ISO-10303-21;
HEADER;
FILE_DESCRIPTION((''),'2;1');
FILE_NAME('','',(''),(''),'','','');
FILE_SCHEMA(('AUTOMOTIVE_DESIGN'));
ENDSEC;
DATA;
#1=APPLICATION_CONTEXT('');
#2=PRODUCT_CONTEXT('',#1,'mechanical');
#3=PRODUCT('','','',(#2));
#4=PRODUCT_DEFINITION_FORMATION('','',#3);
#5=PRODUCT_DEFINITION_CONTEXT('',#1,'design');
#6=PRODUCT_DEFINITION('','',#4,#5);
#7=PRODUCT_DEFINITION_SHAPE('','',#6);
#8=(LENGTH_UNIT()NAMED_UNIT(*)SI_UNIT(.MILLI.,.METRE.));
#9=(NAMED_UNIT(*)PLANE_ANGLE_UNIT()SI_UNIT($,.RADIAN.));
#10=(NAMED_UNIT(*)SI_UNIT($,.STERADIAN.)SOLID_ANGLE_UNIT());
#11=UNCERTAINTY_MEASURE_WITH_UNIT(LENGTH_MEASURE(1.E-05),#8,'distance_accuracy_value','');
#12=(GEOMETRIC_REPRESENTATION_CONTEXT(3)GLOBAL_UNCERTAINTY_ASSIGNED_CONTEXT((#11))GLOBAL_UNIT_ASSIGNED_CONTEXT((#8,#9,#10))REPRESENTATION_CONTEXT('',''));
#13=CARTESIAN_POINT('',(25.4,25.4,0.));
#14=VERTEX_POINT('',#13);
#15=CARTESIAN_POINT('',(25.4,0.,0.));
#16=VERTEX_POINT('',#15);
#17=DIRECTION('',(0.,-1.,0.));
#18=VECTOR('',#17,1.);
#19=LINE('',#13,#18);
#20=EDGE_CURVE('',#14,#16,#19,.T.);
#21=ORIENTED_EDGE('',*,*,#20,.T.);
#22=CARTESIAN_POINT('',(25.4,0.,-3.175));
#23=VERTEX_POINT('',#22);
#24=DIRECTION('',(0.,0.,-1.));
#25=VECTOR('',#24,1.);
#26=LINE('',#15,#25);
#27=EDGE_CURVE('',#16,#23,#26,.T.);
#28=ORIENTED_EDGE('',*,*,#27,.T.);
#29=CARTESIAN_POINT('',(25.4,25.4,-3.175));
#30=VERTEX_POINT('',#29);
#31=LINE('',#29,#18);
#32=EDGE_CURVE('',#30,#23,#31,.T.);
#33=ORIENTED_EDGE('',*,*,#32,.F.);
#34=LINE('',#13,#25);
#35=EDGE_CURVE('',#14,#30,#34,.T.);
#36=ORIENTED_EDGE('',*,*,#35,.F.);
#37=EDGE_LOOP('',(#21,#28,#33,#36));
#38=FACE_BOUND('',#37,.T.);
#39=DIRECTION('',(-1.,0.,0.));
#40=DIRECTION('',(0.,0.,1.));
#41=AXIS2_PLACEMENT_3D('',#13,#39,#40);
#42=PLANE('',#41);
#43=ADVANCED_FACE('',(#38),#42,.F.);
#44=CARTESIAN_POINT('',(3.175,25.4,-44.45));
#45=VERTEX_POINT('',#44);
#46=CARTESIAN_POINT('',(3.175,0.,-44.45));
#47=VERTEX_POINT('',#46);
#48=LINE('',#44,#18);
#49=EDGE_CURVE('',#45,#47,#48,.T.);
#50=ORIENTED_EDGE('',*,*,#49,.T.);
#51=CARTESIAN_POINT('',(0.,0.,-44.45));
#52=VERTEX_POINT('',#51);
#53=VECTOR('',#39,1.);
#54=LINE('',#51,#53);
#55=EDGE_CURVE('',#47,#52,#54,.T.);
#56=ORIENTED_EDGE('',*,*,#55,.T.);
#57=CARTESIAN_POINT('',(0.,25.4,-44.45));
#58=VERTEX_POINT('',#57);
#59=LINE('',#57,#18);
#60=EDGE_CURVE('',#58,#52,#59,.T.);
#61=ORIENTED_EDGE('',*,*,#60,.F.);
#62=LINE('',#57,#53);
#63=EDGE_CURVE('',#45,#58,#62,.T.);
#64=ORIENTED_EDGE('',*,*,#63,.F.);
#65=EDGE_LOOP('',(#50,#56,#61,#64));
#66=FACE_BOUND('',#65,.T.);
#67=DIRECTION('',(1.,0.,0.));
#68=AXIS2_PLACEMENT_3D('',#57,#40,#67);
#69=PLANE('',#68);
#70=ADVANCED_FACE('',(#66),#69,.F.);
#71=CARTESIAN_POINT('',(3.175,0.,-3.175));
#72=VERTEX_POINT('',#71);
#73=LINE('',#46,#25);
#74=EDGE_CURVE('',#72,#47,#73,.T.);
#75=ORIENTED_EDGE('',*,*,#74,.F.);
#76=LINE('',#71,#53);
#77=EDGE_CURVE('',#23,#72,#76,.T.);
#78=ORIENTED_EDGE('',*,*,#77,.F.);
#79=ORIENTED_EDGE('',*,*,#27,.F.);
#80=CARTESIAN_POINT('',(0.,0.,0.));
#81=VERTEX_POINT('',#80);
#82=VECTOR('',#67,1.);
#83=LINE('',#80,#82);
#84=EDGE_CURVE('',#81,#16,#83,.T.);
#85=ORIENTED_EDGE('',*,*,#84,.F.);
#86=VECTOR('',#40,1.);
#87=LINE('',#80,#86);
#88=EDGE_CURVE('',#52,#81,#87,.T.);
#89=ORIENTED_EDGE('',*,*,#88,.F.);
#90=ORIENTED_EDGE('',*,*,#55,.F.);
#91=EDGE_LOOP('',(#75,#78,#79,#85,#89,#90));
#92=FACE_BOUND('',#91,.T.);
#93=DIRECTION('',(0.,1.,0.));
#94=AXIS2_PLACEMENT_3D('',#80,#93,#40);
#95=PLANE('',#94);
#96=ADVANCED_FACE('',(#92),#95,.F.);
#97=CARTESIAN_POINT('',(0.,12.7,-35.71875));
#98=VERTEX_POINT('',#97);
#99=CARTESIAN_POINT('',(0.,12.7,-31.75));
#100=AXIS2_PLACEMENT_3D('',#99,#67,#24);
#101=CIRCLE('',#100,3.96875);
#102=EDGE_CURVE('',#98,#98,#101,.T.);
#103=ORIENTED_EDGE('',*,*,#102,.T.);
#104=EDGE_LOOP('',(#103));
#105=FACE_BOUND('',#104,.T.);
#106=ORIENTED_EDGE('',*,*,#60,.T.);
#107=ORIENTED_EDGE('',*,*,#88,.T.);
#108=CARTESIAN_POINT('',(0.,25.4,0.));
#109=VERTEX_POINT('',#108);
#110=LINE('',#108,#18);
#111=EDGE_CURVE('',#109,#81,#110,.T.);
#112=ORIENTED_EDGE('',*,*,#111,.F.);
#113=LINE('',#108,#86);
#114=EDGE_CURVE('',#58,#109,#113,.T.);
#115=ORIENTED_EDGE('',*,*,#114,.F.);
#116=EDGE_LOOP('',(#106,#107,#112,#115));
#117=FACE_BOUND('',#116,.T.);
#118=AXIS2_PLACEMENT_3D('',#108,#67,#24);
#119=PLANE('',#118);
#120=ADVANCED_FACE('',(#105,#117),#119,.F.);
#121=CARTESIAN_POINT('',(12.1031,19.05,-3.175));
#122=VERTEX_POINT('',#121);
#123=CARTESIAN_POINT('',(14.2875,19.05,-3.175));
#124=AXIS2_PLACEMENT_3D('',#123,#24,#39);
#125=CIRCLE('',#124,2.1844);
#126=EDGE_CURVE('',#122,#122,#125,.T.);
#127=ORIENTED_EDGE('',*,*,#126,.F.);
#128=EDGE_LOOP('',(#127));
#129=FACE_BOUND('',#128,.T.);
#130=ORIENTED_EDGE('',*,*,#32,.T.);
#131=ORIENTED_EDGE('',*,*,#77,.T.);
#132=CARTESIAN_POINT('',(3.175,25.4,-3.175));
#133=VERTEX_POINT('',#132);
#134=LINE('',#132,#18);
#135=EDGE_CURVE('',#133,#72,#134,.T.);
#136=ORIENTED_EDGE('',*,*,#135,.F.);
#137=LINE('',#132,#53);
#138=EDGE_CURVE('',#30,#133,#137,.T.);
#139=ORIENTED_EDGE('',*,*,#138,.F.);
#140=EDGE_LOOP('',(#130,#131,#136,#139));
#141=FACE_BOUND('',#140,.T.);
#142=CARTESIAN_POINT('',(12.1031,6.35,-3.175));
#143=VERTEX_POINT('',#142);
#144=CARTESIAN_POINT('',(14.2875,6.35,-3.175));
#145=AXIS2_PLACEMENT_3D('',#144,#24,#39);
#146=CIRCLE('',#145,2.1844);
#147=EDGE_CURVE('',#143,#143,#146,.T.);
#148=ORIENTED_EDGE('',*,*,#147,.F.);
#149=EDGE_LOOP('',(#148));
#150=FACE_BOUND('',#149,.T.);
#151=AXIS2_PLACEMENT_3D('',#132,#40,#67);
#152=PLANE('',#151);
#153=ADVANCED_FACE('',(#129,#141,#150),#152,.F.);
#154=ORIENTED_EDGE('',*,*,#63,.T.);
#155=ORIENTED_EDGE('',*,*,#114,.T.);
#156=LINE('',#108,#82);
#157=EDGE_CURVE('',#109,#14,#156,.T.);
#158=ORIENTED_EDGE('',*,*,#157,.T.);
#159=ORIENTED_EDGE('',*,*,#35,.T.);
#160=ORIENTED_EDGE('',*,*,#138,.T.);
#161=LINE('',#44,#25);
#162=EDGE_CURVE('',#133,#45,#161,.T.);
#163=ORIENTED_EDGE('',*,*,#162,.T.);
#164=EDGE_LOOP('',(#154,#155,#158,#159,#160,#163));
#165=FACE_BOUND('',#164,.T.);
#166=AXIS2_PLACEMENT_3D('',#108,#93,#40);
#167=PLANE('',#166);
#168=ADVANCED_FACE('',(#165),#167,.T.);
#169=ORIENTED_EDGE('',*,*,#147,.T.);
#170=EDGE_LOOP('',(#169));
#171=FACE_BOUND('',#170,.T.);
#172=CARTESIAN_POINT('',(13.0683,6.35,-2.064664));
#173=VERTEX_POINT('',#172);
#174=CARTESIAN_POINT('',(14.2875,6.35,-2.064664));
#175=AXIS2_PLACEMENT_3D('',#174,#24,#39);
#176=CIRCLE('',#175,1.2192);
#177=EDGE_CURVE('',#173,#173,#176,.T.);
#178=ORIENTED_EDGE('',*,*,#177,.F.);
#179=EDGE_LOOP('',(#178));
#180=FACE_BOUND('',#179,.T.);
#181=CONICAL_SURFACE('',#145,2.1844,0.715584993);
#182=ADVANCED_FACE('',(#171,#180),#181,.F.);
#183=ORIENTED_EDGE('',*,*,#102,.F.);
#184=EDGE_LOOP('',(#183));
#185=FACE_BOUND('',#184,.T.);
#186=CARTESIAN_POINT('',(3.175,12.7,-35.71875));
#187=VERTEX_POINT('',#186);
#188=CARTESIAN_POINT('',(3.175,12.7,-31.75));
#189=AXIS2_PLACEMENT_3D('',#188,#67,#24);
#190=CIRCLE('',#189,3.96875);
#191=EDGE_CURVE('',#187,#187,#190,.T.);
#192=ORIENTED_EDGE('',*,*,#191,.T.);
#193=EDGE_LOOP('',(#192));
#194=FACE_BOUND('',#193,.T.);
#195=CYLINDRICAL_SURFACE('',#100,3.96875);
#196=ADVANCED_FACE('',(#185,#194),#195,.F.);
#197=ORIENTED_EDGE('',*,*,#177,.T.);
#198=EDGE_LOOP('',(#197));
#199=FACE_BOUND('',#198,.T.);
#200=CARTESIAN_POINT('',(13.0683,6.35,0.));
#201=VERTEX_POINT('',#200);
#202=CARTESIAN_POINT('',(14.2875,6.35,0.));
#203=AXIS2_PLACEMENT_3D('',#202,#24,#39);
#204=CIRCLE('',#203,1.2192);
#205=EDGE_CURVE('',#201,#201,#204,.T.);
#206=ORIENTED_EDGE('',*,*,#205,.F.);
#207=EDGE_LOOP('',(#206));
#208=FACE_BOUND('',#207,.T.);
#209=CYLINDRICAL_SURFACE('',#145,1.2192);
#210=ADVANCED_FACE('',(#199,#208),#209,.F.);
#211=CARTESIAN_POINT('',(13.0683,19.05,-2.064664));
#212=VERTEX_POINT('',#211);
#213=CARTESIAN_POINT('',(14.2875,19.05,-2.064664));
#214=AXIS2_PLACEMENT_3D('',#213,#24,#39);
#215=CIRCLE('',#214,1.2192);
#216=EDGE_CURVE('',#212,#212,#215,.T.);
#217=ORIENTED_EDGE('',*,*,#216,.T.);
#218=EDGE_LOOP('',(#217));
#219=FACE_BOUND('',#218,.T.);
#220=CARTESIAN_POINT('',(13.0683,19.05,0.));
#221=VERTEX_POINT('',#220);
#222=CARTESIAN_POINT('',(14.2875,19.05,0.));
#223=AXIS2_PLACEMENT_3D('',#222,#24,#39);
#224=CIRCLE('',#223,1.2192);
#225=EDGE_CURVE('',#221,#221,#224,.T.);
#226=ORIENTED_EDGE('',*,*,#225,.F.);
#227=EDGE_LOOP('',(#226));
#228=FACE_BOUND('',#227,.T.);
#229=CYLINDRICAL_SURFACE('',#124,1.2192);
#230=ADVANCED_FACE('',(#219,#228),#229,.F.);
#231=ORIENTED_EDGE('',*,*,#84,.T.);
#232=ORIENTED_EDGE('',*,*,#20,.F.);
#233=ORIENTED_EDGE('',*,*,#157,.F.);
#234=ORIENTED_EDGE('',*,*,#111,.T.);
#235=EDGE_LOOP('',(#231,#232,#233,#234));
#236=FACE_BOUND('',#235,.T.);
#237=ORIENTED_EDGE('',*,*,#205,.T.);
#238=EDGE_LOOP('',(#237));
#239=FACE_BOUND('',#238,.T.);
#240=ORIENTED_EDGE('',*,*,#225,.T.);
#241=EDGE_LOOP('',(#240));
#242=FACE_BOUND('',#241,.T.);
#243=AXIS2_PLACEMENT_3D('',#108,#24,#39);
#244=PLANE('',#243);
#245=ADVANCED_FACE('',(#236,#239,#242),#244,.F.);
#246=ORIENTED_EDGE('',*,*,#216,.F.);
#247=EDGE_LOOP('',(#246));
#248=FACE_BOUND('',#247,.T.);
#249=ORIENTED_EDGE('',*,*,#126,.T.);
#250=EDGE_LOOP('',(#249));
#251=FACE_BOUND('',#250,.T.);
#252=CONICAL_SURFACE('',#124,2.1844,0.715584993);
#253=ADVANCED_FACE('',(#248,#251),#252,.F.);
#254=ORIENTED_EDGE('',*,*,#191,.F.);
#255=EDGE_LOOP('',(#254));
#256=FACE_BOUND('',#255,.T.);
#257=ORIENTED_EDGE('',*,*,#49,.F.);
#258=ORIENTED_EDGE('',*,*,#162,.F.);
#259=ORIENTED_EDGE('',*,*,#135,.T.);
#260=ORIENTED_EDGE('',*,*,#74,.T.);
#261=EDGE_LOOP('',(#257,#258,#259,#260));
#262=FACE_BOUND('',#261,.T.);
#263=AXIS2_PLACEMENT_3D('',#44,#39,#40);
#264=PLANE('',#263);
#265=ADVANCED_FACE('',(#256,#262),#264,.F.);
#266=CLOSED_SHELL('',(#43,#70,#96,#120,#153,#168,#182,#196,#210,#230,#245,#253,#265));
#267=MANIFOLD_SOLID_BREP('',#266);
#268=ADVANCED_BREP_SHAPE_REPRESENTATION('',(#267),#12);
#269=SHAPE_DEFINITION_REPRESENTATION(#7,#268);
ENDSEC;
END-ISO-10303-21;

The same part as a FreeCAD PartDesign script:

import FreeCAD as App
import Part
import Sketcher
Q = App.Units.Quantity


def add_polygon(sketch, points):
    """Adds a closed chain of lines whose ends are joined by coincident constraints."""
    first, n = sketch.GeometryCount, len(points)
    for a, b in zip(points, points[1:] + points[:1]):
        sketch.addGeometry(Part.LineSegment(App.Vector(*a, 0), App.Vector(*b, 0)), False)
    for i in range(n):
        sketch.addConstraint(Sketcher.Constraint("Coincident", first + i, 2, first + (i + 1) % n, 1))

doc = App.newDocument("Part")
body = doc.addObject("PartDesign::Body", "Body")

# Sketch on XZ plane
sketch1 = doc.addObject("Sketcher::SketchObject", "Sketch")
body.addObject(sketch1)
sketch1.AttachmentSupport = (doc.XZ_Plane, [""])
sketch1.MapMode = "FlatFace"
add_polygon(sketch1, [(0, -44.5), (0, 0), (25.4, 0), (25.4, -3.2), (3.2, -3.2), (3.2, -44.5)])  # lines 0-5
sketch1.addConstraint(Sketcher.Constraint("Vertical", 0))
sketch1.addConstraint(Sketcher.Constraint("Horizontal", 1))
sketch1.addConstraint(Sketcher.Constraint("Vertical", 2))
sketch1.addConstraint(Sketcher.Constraint("Horizontal", 3))
sketch1.addConstraint(Sketcher.Constraint("Vertical", 4))
sketch1.addConstraint(Sketcher.Constraint("Horizontal", 5))
sketch1.addConstraint(Sketcher.Constraint("Coincident", 0, 2, -1, 1))
sketch1.addConstraint(Sketcher.Constraint("Equal", 5, 2))
sketch1.addConstraint(Sketcher.Constraint("DistanceX", 1, 1, 1, 2, Q("1 in")))
sketch1.addConstraint(Sketcher.Constraint("DistanceY", 0, 1, 0, 2, Q("1.75 in")))
sketch1.addConstraint(Sketcher.Constraint("DistanceX", 3, 2, 3, 1, Q("0.875 in")))
pad1 = doc.addObject("PartDesign::Pad", "Pad")
body.addObject(pad1)
pad1.Profile = sketch1
pad1.Length = Q("1 in")
pad1.Reversed = True

# Sketch on YZ plane
sketch2 = doc.addObject("Sketcher::SketchObject", "Sketch001")
body.addObject(sketch2)
sketch2.AttachmentSupport = (doc.YZ_Plane, [""])
sketch2.MapMode = "FlatFace"
sketch2.AttachmentOffset = App.Placement(App.Vector(0, 0, 0.125 * 25.4), App.Rotation())
sketch2.addGeometry(Part.Circle(App.Vector(12.7, -31.8, 0), App.Vector(0, 0, 1), 4), False)
sketch2.addConstraint(Sketcher.Constraint("Diameter", 0, Q("0.3125 in")))
sketch2.addConstraint(Sketcher.Constraint("DistanceX", -1, 1, 0, 3, Q("0.5 in")))
sketch2.addConstraint(Sketcher.Constraint("DistanceY", 0, 3, -1, 1, Q("1.25 in")))
pocket1 = doc.addObject("PartDesign::Pocket", "Pocket")
body.addObject(pocket1)
pocket1.Profile = sketch2
pocket1.Type = "ThroughAll"

# Sketch on XY plane
sketch3 = doc.addObject("Sketcher::SketchObject", "Sketch002")
body.addObject(sketch3)
sketch3.AttachmentSupport = (doc.XY_Plane, [""])
sketch3.MapMode = "FlatFace"
sketch3.AttachmentOffset = App.Placement(App.Vector(0, 0, -0.125 * 25.4), App.Rotation())
sketch3.addGeometry(Part.Circle(App.Vector(14.3, 19.1, 0), App.Vector(0, 0, 1), 1.2), False)
sketch3.addGeometry(Part.Circle(App.Vector(14.3, 6.3, 0), App.Vector(0, 0, 1), 1.2), False)
sketch3.addConstraint(Sketcher.Constraint("Equal", 0, 1))
sketch3.addConstraint(Sketcher.Constraint("Vertical", 0, 3, 1, 3))
sketch3.addConstraint(Sketcher.Constraint("Diameter", 0, Q("0.096 in")))
sketch3.addConstraint(Sketcher.Constraint("DistanceY", 1, 3, 0, 3, Q("0.5 in")))
sketch3.addConstraint(Sketcher.Constraint("DistanceY", -1, 1, 0, 3, Q("0.75 in")))
sketch3.addConstraint(Sketcher.Constraint("DistanceX", -1, 1, 0, 3, Q("0.5625 in")))
doc.recompute()
hole = doc.addObject("PartDesign::Hole", "Hole")
body.addObject(hole)
hole.Profile = sketch3
hole.ThreadType = "None"
hole.Diameter = Q("0.096 in")
hole.DepthType = "ThroughAll"
hole.HoleCutType = "Countersink"
hole.HoleCutDiameter = Q("0.172 in")
hole.HoleCutCountersinkAngle = 82
hole.Reversed = True

doc.recompute()
